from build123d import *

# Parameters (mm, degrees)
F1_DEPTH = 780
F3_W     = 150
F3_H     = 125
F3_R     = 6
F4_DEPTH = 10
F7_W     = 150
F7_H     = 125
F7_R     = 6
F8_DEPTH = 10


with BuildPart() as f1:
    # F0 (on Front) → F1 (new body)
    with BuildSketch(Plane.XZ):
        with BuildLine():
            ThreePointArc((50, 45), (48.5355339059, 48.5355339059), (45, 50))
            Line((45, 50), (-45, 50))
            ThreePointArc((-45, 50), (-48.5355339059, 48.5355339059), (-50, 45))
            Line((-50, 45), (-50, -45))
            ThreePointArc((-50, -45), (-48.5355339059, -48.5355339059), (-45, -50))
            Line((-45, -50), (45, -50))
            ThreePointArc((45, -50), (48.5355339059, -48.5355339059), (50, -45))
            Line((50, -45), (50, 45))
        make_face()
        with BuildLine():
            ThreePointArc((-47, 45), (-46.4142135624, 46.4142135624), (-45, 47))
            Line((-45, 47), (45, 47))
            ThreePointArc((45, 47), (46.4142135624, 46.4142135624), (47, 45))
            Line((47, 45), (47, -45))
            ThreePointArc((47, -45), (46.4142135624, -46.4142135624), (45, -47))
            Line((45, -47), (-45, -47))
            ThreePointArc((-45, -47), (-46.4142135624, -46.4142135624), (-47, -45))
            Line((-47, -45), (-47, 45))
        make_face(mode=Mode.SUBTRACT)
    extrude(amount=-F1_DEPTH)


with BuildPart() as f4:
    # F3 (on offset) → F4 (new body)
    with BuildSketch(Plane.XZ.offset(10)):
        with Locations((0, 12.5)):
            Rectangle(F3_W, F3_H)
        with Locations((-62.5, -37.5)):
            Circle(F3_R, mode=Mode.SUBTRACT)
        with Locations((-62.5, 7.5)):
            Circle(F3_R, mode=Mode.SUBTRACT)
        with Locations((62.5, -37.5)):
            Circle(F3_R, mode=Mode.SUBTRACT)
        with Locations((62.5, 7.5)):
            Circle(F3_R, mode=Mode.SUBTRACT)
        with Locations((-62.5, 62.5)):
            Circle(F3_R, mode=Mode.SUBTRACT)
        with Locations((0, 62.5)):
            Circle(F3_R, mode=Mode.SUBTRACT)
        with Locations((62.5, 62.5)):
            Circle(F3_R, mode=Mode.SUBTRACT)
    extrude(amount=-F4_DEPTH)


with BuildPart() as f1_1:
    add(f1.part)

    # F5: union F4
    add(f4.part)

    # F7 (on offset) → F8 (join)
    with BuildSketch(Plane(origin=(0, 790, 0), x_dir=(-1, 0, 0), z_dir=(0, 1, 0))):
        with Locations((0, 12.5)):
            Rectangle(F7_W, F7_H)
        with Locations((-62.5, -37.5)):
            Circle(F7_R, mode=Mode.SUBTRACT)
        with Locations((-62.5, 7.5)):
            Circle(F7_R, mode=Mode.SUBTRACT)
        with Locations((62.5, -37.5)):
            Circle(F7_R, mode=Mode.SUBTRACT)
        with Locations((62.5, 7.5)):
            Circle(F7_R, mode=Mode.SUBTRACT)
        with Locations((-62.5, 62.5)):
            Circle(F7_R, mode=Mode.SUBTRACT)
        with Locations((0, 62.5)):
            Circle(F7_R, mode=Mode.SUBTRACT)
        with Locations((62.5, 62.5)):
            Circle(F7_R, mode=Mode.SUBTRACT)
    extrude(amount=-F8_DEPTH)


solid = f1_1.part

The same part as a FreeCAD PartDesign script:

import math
import FreeCAD as App
import Part
import Sketcher

V = App.Vector
Q = App.Units.Quantity

doc = App.newDocument("Part")
params = doc.addObject("Spreadsheet::Sheet", "Params")
for row, (alias, value) in enumerate([
    ("sketch1_radius", "5 mm"),
    ("sketch1_radius2", "2 mm"),
    ("sketch1_width", "90 mm"),
    ("pad1_length", "780 mm"),
    ("sketch2_diameter", "12 mm"),
    ("sketch2_width", "150 mm"),
    ("sketch2_height", "125 mm"),
    ("pad2_length", "10 mm"),
    ("sketch3_diameter", "12 mm"),
    ("sketch3_width", "150 mm"),
    ("sketch3_height", "125 mm"),
    ("pad3_length", "10 mm"),
], start=1):
    params.set(f"A{row}", alias)
    params.set(f"B{row}", "=" + value)
    params.setAlias(f"B{row}", alias)

body = doc.addObject("PartDesign::Body", "Body")

sketch1 = body.newObject("Sketcher::SketchObject", "Sketch")
sketch1.AttachmentSupport = (doc.getObject("XZ_Plane"), [""])
sketch1.MapMode = "FlatFace"
sketch1.addGeometry([
    Part.ArcOfCircle(Part.Circle(V(45, 45, 0), V(0, 0, 1), 5), math.radians(0), math.radians(90)),
    Part.LineSegment(V(45, 50, 0), V(-45, 50, 0)),
    Part.ArcOfCircle(Part.Circle(V(-45, 45, 0), V(0, 0, 1), 5), math.radians(90), math.radians(180)),
    Part.LineSegment(V(-50, 45, 0), V(-50, -45, 0)),
    Part.ArcOfCircle(Part.Circle(V(-45, -45, 0), V(0, 0, 1), 5), math.radians(180), math.radians(270)),
    Part.LineSegment(V(-45, -50, 0), V(45, -50, 0)),
    Part.ArcOfCircle(Part.Circle(V(45, -45, 0), V(0, 0, 1), 5), math.radians(-90), math.radians(0)),
    Part.LineSegment(V(50, -45, 0), V(50, 45, 0)),
    Part.LineSegment(V(-47, -45, 0), V(-47, 45, 0)),
    Part.ArcOfCircle(Part.Circle(V(-45, 45, 0), V(0, 0, 1), 2), math.radians(90), math.radians(180)),
    Part.LineSegment(V(-45, 47, 0), V(45, 47, 0)),
    Part.ArcOfCircle(Part.Circle(V(45, 45, 0), V(0, 0, 1), 2), math.radians(0), math.radians(90)),
    Part.LineSegment(V(47, 45, 0), V(47, -45, 0)),
    Part.ArcOfCircle(Part.Circle(V(45, -45, 0), V(0, 0, 1), 2), math.radians(-90), math.radians(0)),
    Part.LineSegment(V(45, -47, 0), V(-45, -47, 0)),
    Part.ArcOfCircle(Part.Circle(V(-45, -45, 0), V(0, 0, 1), 2), math.radians(180), math.radians(270)),
], False)
sketch1.addConstraint([
    Sketcher.Constraint("Tangent", 0, 2, 1, 1),
    Sketcher.Constraint("Tangent", 1, 2, 2, 1),
    Sketcher.Constraint("Tangent", 2, 2, 3, 1),
    Sketcher.Constraint("Tangent", 3, 2, 4, 1),
    Sketcher.Constraint("Tangent", 4, 2, 5, 1),
    Sketcher.Constraint("Tangent", 5, 2, 6, 1),
    Sketcher.Constraint("Tangent", 6, 2, 7, 1),
    Sketcher.Constraint("Tangent", 7, 2, 0, 1),
    Sketcher.Constraint("Tangent", 8, 2, 9, 2),
    Sketcher.Constraint("Tangent", 9, 1, 10, 1),
    Sketcher.Constraint("Tangent", 10, 2, 11, 2),
    Sketcher.Constraint("Tangent", 11, 1, 12, 1),
    Sketcher.Constraint("Tangent", 12, 2, 13, 2),
    Sketcher.Constraint("Tangent", 13, 1, 14, 1),
    Sketcher.Constraint("Tangent", 14, 2, 15, 2),
    Sketcher.Constraint("Tangent", 15, 1, 8, 1),
    Sketcher.Constraint("Horizontal", 1),
    Sketcher.Constraint("Vertical", 3),
    Sketcher.Constraint("Horizontal", 5),
    Sketcher.Constraint("Vertical", 7),
    Sketcher.Constraint("Vertical", 8),
    Sketcher.Constraint("Horizontal", 10),
    Sketcher.Constraint("Vertical", 12),
    Sketcher.Constraint("Horizontal", 14),
    Sketcher.Constraint("Coincident", 9, 3, 2, 3),
    Sketcher.Constraint("Coincident", 11, 3, 0, 3),
    Sketcher.Constraint("Coincident", 13, 3, 6, 3),
    Sketcher.Constraint("Equal", 0, 2),
    Sketcher.Constraint("Equal", 2, 4),
    Sketcher.Constraint("Equal", 4, 6),
    Sketcher.Constraint("Equal", 13, 15),
    Sketcher.Constraint("Symmetric", 0, 3, 4, 3, -1, 1),
    Sketcher.Constraint("Equal", 14, 3),
    Sketcher.Constraint("Radius", 0, Q("5 mm")),
    Sketcher.Constraint("Radius", 9, Q("2 mm")),
    Sketcher.Constraint("DistanceX", 1, 2, 1, 1, Q("90 mm")),
])
sketch1.setExpression("Constraints[33]", "Params.sketch1_radius")
sketch1.setExpression("Constraints[34]", "Params.sketch1_radius2")
sketch1.setExpression("Constraints[35]", "Params.sketch1_width")
pad1 = body.newObject("PartDesign::Pad", "Pad")
pad1.Profile = sketch1
pad1.setExpression("Length", "Params.pad1_length")
pad1.Reversed = True
body2 = doc.addObject("PartDesign::Body", "Body001")

sketch2 = body2.newObject("Sketcher::SketchObject", "Sketch001")
sketch2.AttachmentSupport = (doc.getObject("XZ_Plane001"), [""])
sketch2.MapMode = "FlatFace"
sketch2.AttachmentOffset = App.Placement(V(0, 0, 10), App.Rotation())
sketch2.addGeometry([
    Part.LineSegment(V(-75, 75, 0), V(-75, -50, 0)),
    Part.LineSegment(V(-75, -50, 0), V(75, -50, 0)),
    Part.LineSegment(V(75, -50, 0), V(75, 75, 0)),
    Part.LineSegment(V(75, 75, 0), V(-75, 75, 0)),
    Part.Circle(V(-62, -38, 0), V(0, 0, 1), 6),
    Part.Circle(V(-62, 8, 0), V(0, 0, 1), 6),
    Part.Circle(V(62, -38, 0), V(0, 0, 1), 6),
    Part.Circle(V(62, 8, 0), V(0, 0, 1), 6),
    Part.Circle(V(-62, 62, 0), V(0, 0, 1), 6),
    Part.Circle(V(0, 62, 0), V(0, 0, 1), 6),
    Part.Circle(V(62, 62, 0), V(0, 0, 1), 6),
], False)
sketch2.addConstraint([
    Sketcher.Constraint("Coincident", 0, 2, 1, 1),
    Sketcher.Constraint("Coincident", 1, 2, 2, 1),
    Sketcher.Constraint("Coincident", 2, 2, 3, 1),
    Sketcher.Constraint("Coincident", 3, 2, 0, 1),
    Sketcher.Constraint("Vertical", 0),
    Sketcher.Constraint("Horizontal", 1),
    Sketcher.Constraint("Vertical", 2),
    Sketcher.Constraint("Horizontal", 3),
    Sketcher.Constraint("Equal", 4, 5),
    Sketcher.Constraint("Equal", 5, 6),
    Sketcher.Constraint("Equal", 6, 7),
    Sketcher.Constraint("Equal", 7, 8),
    Sketcher.Constraint("Equal", 8, 9),
    Sketcher.Constraint("Equal", 9, 10),
    Sketcher.Constraint("Symmetric", 4, 3, 6, 3, -2),
    Sketcher.Constraint("Symmetric", 5, 3, 7, 3, -2),
    Sketcher.Constraint("Symmetric", 8, 3, 10, 3, -2),
    Sketcher.Constraint("PointOnObject", 9, 3, -2),
    Sketcher.Constraint("Horizontal", 8, 3, 9, 3),
    Sketcher.Constraint("Vertical", 4, 3, 5, 3),
    Sketcher.Constraint("Vertical", 5, 3, 8, 3),
    Sketcher.Constraint("Diameter", 4, Q("12 mm")),
    Sketcher.Constraint("DistanceX", 1, 1, 1, 2, Q("150 mm")),
    Sketcher.Constraint("DistanceY", 0, 2, 0, 1, Q("125 mm")),
    Sketcher.Constraint("DistanceX", 0, 2, -1, 1, Q("75 mm")),
    Sketcher.Constraint("DistanceY", 0, 2, -1, 1, Q("50 mm")),
    Sketcher.Constraint("DistanceY", 4, 3, 5, 3, Q("45 mm")),
    Sketcher.Constraint("DistanceX", 4, 3, 6, 3, Q("125 mm")),
    Sketcher.Constraint("DistanceY", 5, 3, 8, 3, Q("55 mm")),
    Sketcher.Constraint("DistanceY", 4, 3, -1, 1, Q("37.5 mm")),
])
sketch2.setExpression("Constraints[21]", "Params.sketch2_diameter")
sketch2.setExpression("Constraints[22]", "Params.sketch2_width")
sketch2.setExpression("Constraints[23]", "Params.sketch2_height")
pad2 = body2.newObject("PartDesign::Pad", "Pad001")
pad2.Profile = sketch2
pad2.setExpression("Length", "Params.pad2_length")
pad2.Reversed = True
doc.recompute()

boolean = body.newObject("PartDesign::Boolean", "Boolean")
boolean.Type = "Fuse"
boolean.addObjects([body2])

sketch3 = body.newObject("Sketcher::SketchObject", "Sketch002")
sketch3.AttachmentSupport = (doc.getObject("XZ_Plane"), [""])
sketch3.MapMode = "FlatFace"
sketch3.AttachmentOffset = App.Placement(V(0, 0, -790), App.Rotation())
sketch3.addGeometry([
    Part.LineSegment(V(75, 75, 0), V(75, -50, 0)),
    Part.LineSegment(V(75, -50, 0), V(-75, -50, 0)),
    Part.LineSegment(V(-75, -50, 0), V(-75, 75, 0)),
    Part.LineSegment(V(-75, 75, 0), V(75, 75, 0)),
    Part.Circle(V(62, -38, 0), V(0, 0, 1), 6),
    Part.Circle(V(62, 8, 0), V(0, 0, 1), 6),
    Part.Circle(V(-62, -38, 0), V(0, 0, 1), 6),
    Part.Circle(V(-62, 8, 0), V(0, 0, 1), 6),
    Part.Circle(V(62, 62, 0), V(0, 0, 1), 6),
    Part.Circle(V(0, 62, 0), V(0, 0, 1), 6),
    Part.Circle(V(-62, 62, 0), V(0, 0, 1), 6),
], False)
sketch3.addConstraint([
    Sketcher.Constraint("Coincident", 0, 2, 1, 1),
    Sketcher.Constraint("Coincident", 1, 2, 2, 1),
    Sketcher.Constraint("Coincident", 2, 2, 3, 1),
    Sketcher.Constraint("Coincident", 3, 2, 0, 1),
    Sketcher.Constraint("Vertical", 0),
    Sketcher.Constraint("Horizontal", 1),
    Sketcher.Constraint("Vertical", 2),
    Sketcher.Constraint("Horizontal", 3),
    Sketcher.Constraint("Equal", 4, 5),
    Sketcher.Constraint("Equal", 5, 6),
    Sketcher.Constraint("Equal", 6, 7),
    Sketcher.Constraint("Equal", 7, 8),
    Sketcher.Constraint("Equal", 8, 9),
    Sketcher.Constraint("Equal", 9, 10),
    Sketcher.Constraint("Symmetric", 4, 3, 6, 3, -2),
    Sketcher.Constraint("Symmetric", 5, 3, 7, 3, -2),
    Sketcher.Constraint("Symmetric", 8, 3, 10, 3, -2),
    Sketcher.Constraint("PointOnObject", 9, 3, -2),
    Sketcher.Constraint("Horizontal", 8, 3, 9, 3),
    Sketcher.Constraint("Vertical", 4, 3, 5, 3),
    Sketcher.Constraint("Vertical", 5, 3, 8, 3),
    Sketcher.Constraint("Diameter", 4, Q("12 mm")),
    Sketcher.Constraint("DistanceX", 1, 2, 1, 1, Q("150 mm")),
    Sketcher.Constraint("DistanceY", 0, 2, 0, 1, Q("125 mm")),
    Sketcher.Constraint("DistanceX", -1, 1, 0, 2, Q("75 mm")),
    Sketcher.Constraint("DistanceY", 0, 2, -1, 1, Q("50 mm")),
    Sketcher.Constraint("DistanceY", 4, 3, 5, 3, Q("45 mm")),
    Sketcher.Constraint("DistanceX", 6, 3, 4, 3, Q("125 mm")),
    Sketcher.Constraint("DistanceY", 5, 3, 8, 3, Q("55 mm")),
    Sketcher.Constraint("DistanceY", 4, 3, -1, 1, Q("37.5 mm")),
])
sketch3.setExpression("Constraints[21]", "Params.sketch3_diameter")
sketch3.setExpression("Constraints[22]", "Params.sketch3_width")
sketch3.setExpression("Constraints[23]", "Params.sketch3_height")
pad3 = body.newObject("PartDesign::Pad", "Pad002")
pad3.Profile = sketch3
pad3.setExpression("Length", "Params.pad3_length")

doc.recompute()
